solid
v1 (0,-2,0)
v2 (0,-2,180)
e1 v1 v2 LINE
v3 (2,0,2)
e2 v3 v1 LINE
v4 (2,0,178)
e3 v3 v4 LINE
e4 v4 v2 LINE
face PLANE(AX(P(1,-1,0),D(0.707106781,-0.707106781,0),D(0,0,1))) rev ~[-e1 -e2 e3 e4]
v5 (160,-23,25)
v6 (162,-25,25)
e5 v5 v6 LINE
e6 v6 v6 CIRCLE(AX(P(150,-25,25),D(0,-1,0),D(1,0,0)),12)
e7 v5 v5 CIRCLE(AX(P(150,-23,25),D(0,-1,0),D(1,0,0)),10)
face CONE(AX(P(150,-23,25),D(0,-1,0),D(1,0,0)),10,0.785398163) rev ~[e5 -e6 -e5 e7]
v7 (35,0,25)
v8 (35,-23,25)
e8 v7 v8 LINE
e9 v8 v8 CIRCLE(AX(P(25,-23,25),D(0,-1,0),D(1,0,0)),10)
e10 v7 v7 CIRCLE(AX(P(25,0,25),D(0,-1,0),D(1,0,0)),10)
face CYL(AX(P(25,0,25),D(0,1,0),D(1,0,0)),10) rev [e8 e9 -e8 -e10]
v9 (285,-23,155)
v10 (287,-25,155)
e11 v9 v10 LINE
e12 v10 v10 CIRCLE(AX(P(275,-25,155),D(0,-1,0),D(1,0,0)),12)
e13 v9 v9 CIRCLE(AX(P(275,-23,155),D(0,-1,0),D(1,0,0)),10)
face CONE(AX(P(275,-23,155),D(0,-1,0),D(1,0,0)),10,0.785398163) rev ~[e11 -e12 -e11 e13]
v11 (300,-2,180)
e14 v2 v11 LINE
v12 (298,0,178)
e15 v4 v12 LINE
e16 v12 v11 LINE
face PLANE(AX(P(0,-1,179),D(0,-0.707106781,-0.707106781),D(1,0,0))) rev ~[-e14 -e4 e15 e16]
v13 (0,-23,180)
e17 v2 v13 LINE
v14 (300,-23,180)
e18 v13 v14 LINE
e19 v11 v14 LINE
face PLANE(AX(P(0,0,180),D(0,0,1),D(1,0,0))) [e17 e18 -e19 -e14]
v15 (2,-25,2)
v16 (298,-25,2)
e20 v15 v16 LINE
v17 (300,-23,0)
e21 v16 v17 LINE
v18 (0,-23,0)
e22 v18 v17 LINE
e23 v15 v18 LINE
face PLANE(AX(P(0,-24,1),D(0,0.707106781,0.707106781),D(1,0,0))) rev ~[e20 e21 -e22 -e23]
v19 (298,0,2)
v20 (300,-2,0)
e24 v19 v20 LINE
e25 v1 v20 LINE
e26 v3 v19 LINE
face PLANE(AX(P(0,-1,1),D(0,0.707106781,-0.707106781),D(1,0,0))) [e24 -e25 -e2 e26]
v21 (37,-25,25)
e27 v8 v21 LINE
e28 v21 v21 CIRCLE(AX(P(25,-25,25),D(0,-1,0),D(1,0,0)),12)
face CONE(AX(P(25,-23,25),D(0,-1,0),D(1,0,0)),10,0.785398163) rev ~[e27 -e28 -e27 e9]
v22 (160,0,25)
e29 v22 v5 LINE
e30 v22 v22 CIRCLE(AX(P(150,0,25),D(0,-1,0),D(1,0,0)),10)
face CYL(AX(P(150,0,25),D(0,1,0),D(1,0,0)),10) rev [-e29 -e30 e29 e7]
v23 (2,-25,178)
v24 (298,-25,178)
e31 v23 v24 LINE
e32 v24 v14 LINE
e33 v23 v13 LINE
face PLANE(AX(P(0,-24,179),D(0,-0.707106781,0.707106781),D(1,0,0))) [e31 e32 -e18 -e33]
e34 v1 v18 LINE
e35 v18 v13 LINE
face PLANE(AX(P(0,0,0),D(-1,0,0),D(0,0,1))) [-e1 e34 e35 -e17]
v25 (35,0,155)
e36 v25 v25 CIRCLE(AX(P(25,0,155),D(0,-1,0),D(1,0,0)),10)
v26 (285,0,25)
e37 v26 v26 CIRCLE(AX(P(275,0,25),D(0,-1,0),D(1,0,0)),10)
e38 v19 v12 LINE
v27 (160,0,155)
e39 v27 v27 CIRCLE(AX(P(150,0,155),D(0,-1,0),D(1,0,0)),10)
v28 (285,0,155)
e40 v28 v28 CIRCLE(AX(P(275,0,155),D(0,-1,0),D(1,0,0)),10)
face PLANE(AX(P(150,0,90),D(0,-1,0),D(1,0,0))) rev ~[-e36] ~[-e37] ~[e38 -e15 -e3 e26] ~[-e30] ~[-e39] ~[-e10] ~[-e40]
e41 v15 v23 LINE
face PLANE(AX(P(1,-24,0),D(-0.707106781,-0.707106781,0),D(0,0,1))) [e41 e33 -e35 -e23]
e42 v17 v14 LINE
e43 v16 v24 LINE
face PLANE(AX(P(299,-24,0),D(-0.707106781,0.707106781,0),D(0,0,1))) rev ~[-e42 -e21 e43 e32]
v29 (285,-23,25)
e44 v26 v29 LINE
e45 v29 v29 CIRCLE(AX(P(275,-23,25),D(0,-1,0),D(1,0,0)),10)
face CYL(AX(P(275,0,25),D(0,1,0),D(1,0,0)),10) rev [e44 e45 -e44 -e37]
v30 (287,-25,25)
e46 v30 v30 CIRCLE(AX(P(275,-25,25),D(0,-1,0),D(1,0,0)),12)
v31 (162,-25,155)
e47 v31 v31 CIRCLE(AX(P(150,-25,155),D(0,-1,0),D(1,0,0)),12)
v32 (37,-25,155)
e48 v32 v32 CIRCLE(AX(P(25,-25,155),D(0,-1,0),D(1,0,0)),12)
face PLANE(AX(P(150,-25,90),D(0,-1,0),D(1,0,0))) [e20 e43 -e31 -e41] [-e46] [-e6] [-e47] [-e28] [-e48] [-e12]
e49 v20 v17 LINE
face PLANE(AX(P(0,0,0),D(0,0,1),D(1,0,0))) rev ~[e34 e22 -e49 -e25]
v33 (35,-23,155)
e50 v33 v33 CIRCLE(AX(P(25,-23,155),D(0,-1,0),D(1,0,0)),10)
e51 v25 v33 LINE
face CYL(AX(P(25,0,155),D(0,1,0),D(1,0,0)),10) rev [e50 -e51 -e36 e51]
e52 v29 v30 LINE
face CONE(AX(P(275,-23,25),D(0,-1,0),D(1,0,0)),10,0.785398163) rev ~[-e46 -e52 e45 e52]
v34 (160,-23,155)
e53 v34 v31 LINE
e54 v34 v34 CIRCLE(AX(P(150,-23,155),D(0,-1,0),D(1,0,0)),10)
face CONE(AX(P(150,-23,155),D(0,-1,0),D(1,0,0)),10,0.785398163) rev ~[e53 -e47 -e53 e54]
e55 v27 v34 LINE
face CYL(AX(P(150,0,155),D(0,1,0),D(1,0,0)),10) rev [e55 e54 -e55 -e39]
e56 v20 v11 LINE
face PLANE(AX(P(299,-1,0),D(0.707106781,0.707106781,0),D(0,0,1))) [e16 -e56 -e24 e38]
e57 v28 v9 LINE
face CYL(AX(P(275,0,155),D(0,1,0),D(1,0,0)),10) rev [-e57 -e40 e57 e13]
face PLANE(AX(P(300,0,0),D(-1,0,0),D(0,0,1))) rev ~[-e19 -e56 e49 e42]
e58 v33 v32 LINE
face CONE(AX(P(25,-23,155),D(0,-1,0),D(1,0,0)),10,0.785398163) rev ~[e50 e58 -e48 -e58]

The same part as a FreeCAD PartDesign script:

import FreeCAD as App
import Part
import Sketcher

V = App.Vector
Q = App.Units.Quantity


def edges_at(feature, points):
    """Names of the edges that pass closest to the given points."""
    edges = feature.Shape.Edges
    near = lambda p: min(range(len(edges)), key=lambda i: edges[i].distToShape(Part.Vertex(*p))[0])
    return sorted({f"Edge{near(p) + 1}" for p in points})

doc = App.newDocument("Part")
body = doc.addObject("PartDesign::Body", "Body")

# Sketch on XZ plane
sketch1 = body.newObject("Sketcher::SketchObject", "Sketch")
sketch1.AttachmentSupport = (doc.getObject("XZ_Plane"), [""])
sketch1.MapMode = "FlatFace"
sketch1.addGeometry([
    Part.LineSegment(V(0, 180, 0), V(0, 0, 0)),  # 0
    Part.LineSegment(V(0, 0, 0), V(300, 0, 0)),  # 1
    Part.LineSegment(V(300, 0, 0), V(300, 180, 0)),  # 2
    Part.LineSegment(V(300, 180, 0), V(0, 180, 0)),  # 3
    Part.Circle(V(25, 25, 0), V(0, 0, 1), 10),  # 4
    Part.Circle(V(150, 25, 0), V(0, 0, 1), 10),  # 5
    Part.Circle(V(275, 25, 0), V(0, 0, 1), 10),  # 6
    Part.Circle(V(25, 155, 0), V(0, 0, 1), 10),  # 7
    Part.Circle(V(150, 155, 0), V(0, 0, 1), 10),  # 8
    Part.Circle(V(275, 155, 0), V(0, 0, 1), 10),  # 9
], False)
sketch1.addConstraint([
    Sketcher.Constraint("Coincident", 0, 2, 1, 1),
    Sketcher.Constraint("Coincident", 1, 2, 2, 1),
    Sketcher.Constraint("Coincident", 2, 2, 3, 1),
    Sketcher.Constraint("Coincident", 3, 2, 0, 1),
    Sketcher.Constraint("Vertical", 0),
    Sketcher.Constraint("Horizontal", 1),
    Sketcher.Constraint("Vertical", 2),
    Sketcher.Constraint("Horizontal", 3),
    Sketcher.Constraint("Coincident", 0, 2, -1, 1),
    Sketcher.Constraint("Equal", 4, 5),
    Sketcher.Constraint("Equal", 5, 6),
    Sketcher.Constraint("Equal", 6, 7),
    Sketcher.Constraint("Equal", 7, 8),
    Sketcher.Constraint("Equal", 8, 9),
    Sketcher.Constraint("Horizontal", 4, 3, 5, 3),
    Sketcher.Constraint("Horizontal", 5, 3, 6, 3),
    Sketcher.Constraint("Horizontal", 7, 3, 8, 3),
    Sketcher.Constraint("Horizontal", 8, 3, 9, 3),
    Sketcher.Constraint("Vertical", 4, 3, 7, 3),
    Sketcher.Constraint("Vertical", 5, 3, 8, 3),
    Sketcher.Constraint("Vertical", 6, 3, 9, 3),
    Sketcher.Constraint("Diameter", 4, Q("20 mm")),
    Sketcher.Constraint("DistanceX", 1, 1, 1, 2, Q("300 mm")),
    Sketcher.Constraint("DistanceY", 0, 2, 0, 1, Q("180 mm")),
    Sketcher.Constraint("DistanceX", -1, 1, 4, 3, Q("25 mm")),
    Sketcher.Constraint("DistanceY", -1, 1, 4, 3, Q("25 mm")),
    Sketcher.Constraint("DistanceX", -1, 1, 5, 3, Q("150 mm")),
    Sketcher.Constraint("DistanceX", -1, 1, 6, 3, Q("275 mm")),
    Sketcher.Constraint("DistanceY", -1, 1, 7, 3, Q("155 mm")),
])
pad1 = body.newObject("PartDesign::Pad", "Pad")
pad1.Profile = sketch1
pad1.Length = 25
doc.recompute()

chamfer = body.newObject("PartDesign::Chamfer", "Chamfer")
chamfer.Base = (pad1, edges_at(pad1, [
    (15, -25, 155),
    (15, -25, 25),
    (140, -25, 25),
    (140, -25, 155),
    (265, -25, 155),
    (265, -25, 25),
]))
chamfer.ChamferType = "Two distances"
chamfer.Size = 2
chamfer.Size2 = 2
doc.recompute()

chamfer2 = body.newObject("PartDesign::Chamfer", "Chamfer001")
chamfer2.Base = (chamfer, edges_at(chamfer, [
    (300, -25, 90),
    (150, -25, 0),
    (0, -25, 90),
    (150, -25, 180),
    (150, 0, 0),
    (0, 0, 90),
    (300, 0, 90),
    (150, 0, 180),
]))
chamfer2.ChamferType = "Two distances"
chamfer2.Size = 2
chamfer2.Size2 = 2

doc.recompute()
